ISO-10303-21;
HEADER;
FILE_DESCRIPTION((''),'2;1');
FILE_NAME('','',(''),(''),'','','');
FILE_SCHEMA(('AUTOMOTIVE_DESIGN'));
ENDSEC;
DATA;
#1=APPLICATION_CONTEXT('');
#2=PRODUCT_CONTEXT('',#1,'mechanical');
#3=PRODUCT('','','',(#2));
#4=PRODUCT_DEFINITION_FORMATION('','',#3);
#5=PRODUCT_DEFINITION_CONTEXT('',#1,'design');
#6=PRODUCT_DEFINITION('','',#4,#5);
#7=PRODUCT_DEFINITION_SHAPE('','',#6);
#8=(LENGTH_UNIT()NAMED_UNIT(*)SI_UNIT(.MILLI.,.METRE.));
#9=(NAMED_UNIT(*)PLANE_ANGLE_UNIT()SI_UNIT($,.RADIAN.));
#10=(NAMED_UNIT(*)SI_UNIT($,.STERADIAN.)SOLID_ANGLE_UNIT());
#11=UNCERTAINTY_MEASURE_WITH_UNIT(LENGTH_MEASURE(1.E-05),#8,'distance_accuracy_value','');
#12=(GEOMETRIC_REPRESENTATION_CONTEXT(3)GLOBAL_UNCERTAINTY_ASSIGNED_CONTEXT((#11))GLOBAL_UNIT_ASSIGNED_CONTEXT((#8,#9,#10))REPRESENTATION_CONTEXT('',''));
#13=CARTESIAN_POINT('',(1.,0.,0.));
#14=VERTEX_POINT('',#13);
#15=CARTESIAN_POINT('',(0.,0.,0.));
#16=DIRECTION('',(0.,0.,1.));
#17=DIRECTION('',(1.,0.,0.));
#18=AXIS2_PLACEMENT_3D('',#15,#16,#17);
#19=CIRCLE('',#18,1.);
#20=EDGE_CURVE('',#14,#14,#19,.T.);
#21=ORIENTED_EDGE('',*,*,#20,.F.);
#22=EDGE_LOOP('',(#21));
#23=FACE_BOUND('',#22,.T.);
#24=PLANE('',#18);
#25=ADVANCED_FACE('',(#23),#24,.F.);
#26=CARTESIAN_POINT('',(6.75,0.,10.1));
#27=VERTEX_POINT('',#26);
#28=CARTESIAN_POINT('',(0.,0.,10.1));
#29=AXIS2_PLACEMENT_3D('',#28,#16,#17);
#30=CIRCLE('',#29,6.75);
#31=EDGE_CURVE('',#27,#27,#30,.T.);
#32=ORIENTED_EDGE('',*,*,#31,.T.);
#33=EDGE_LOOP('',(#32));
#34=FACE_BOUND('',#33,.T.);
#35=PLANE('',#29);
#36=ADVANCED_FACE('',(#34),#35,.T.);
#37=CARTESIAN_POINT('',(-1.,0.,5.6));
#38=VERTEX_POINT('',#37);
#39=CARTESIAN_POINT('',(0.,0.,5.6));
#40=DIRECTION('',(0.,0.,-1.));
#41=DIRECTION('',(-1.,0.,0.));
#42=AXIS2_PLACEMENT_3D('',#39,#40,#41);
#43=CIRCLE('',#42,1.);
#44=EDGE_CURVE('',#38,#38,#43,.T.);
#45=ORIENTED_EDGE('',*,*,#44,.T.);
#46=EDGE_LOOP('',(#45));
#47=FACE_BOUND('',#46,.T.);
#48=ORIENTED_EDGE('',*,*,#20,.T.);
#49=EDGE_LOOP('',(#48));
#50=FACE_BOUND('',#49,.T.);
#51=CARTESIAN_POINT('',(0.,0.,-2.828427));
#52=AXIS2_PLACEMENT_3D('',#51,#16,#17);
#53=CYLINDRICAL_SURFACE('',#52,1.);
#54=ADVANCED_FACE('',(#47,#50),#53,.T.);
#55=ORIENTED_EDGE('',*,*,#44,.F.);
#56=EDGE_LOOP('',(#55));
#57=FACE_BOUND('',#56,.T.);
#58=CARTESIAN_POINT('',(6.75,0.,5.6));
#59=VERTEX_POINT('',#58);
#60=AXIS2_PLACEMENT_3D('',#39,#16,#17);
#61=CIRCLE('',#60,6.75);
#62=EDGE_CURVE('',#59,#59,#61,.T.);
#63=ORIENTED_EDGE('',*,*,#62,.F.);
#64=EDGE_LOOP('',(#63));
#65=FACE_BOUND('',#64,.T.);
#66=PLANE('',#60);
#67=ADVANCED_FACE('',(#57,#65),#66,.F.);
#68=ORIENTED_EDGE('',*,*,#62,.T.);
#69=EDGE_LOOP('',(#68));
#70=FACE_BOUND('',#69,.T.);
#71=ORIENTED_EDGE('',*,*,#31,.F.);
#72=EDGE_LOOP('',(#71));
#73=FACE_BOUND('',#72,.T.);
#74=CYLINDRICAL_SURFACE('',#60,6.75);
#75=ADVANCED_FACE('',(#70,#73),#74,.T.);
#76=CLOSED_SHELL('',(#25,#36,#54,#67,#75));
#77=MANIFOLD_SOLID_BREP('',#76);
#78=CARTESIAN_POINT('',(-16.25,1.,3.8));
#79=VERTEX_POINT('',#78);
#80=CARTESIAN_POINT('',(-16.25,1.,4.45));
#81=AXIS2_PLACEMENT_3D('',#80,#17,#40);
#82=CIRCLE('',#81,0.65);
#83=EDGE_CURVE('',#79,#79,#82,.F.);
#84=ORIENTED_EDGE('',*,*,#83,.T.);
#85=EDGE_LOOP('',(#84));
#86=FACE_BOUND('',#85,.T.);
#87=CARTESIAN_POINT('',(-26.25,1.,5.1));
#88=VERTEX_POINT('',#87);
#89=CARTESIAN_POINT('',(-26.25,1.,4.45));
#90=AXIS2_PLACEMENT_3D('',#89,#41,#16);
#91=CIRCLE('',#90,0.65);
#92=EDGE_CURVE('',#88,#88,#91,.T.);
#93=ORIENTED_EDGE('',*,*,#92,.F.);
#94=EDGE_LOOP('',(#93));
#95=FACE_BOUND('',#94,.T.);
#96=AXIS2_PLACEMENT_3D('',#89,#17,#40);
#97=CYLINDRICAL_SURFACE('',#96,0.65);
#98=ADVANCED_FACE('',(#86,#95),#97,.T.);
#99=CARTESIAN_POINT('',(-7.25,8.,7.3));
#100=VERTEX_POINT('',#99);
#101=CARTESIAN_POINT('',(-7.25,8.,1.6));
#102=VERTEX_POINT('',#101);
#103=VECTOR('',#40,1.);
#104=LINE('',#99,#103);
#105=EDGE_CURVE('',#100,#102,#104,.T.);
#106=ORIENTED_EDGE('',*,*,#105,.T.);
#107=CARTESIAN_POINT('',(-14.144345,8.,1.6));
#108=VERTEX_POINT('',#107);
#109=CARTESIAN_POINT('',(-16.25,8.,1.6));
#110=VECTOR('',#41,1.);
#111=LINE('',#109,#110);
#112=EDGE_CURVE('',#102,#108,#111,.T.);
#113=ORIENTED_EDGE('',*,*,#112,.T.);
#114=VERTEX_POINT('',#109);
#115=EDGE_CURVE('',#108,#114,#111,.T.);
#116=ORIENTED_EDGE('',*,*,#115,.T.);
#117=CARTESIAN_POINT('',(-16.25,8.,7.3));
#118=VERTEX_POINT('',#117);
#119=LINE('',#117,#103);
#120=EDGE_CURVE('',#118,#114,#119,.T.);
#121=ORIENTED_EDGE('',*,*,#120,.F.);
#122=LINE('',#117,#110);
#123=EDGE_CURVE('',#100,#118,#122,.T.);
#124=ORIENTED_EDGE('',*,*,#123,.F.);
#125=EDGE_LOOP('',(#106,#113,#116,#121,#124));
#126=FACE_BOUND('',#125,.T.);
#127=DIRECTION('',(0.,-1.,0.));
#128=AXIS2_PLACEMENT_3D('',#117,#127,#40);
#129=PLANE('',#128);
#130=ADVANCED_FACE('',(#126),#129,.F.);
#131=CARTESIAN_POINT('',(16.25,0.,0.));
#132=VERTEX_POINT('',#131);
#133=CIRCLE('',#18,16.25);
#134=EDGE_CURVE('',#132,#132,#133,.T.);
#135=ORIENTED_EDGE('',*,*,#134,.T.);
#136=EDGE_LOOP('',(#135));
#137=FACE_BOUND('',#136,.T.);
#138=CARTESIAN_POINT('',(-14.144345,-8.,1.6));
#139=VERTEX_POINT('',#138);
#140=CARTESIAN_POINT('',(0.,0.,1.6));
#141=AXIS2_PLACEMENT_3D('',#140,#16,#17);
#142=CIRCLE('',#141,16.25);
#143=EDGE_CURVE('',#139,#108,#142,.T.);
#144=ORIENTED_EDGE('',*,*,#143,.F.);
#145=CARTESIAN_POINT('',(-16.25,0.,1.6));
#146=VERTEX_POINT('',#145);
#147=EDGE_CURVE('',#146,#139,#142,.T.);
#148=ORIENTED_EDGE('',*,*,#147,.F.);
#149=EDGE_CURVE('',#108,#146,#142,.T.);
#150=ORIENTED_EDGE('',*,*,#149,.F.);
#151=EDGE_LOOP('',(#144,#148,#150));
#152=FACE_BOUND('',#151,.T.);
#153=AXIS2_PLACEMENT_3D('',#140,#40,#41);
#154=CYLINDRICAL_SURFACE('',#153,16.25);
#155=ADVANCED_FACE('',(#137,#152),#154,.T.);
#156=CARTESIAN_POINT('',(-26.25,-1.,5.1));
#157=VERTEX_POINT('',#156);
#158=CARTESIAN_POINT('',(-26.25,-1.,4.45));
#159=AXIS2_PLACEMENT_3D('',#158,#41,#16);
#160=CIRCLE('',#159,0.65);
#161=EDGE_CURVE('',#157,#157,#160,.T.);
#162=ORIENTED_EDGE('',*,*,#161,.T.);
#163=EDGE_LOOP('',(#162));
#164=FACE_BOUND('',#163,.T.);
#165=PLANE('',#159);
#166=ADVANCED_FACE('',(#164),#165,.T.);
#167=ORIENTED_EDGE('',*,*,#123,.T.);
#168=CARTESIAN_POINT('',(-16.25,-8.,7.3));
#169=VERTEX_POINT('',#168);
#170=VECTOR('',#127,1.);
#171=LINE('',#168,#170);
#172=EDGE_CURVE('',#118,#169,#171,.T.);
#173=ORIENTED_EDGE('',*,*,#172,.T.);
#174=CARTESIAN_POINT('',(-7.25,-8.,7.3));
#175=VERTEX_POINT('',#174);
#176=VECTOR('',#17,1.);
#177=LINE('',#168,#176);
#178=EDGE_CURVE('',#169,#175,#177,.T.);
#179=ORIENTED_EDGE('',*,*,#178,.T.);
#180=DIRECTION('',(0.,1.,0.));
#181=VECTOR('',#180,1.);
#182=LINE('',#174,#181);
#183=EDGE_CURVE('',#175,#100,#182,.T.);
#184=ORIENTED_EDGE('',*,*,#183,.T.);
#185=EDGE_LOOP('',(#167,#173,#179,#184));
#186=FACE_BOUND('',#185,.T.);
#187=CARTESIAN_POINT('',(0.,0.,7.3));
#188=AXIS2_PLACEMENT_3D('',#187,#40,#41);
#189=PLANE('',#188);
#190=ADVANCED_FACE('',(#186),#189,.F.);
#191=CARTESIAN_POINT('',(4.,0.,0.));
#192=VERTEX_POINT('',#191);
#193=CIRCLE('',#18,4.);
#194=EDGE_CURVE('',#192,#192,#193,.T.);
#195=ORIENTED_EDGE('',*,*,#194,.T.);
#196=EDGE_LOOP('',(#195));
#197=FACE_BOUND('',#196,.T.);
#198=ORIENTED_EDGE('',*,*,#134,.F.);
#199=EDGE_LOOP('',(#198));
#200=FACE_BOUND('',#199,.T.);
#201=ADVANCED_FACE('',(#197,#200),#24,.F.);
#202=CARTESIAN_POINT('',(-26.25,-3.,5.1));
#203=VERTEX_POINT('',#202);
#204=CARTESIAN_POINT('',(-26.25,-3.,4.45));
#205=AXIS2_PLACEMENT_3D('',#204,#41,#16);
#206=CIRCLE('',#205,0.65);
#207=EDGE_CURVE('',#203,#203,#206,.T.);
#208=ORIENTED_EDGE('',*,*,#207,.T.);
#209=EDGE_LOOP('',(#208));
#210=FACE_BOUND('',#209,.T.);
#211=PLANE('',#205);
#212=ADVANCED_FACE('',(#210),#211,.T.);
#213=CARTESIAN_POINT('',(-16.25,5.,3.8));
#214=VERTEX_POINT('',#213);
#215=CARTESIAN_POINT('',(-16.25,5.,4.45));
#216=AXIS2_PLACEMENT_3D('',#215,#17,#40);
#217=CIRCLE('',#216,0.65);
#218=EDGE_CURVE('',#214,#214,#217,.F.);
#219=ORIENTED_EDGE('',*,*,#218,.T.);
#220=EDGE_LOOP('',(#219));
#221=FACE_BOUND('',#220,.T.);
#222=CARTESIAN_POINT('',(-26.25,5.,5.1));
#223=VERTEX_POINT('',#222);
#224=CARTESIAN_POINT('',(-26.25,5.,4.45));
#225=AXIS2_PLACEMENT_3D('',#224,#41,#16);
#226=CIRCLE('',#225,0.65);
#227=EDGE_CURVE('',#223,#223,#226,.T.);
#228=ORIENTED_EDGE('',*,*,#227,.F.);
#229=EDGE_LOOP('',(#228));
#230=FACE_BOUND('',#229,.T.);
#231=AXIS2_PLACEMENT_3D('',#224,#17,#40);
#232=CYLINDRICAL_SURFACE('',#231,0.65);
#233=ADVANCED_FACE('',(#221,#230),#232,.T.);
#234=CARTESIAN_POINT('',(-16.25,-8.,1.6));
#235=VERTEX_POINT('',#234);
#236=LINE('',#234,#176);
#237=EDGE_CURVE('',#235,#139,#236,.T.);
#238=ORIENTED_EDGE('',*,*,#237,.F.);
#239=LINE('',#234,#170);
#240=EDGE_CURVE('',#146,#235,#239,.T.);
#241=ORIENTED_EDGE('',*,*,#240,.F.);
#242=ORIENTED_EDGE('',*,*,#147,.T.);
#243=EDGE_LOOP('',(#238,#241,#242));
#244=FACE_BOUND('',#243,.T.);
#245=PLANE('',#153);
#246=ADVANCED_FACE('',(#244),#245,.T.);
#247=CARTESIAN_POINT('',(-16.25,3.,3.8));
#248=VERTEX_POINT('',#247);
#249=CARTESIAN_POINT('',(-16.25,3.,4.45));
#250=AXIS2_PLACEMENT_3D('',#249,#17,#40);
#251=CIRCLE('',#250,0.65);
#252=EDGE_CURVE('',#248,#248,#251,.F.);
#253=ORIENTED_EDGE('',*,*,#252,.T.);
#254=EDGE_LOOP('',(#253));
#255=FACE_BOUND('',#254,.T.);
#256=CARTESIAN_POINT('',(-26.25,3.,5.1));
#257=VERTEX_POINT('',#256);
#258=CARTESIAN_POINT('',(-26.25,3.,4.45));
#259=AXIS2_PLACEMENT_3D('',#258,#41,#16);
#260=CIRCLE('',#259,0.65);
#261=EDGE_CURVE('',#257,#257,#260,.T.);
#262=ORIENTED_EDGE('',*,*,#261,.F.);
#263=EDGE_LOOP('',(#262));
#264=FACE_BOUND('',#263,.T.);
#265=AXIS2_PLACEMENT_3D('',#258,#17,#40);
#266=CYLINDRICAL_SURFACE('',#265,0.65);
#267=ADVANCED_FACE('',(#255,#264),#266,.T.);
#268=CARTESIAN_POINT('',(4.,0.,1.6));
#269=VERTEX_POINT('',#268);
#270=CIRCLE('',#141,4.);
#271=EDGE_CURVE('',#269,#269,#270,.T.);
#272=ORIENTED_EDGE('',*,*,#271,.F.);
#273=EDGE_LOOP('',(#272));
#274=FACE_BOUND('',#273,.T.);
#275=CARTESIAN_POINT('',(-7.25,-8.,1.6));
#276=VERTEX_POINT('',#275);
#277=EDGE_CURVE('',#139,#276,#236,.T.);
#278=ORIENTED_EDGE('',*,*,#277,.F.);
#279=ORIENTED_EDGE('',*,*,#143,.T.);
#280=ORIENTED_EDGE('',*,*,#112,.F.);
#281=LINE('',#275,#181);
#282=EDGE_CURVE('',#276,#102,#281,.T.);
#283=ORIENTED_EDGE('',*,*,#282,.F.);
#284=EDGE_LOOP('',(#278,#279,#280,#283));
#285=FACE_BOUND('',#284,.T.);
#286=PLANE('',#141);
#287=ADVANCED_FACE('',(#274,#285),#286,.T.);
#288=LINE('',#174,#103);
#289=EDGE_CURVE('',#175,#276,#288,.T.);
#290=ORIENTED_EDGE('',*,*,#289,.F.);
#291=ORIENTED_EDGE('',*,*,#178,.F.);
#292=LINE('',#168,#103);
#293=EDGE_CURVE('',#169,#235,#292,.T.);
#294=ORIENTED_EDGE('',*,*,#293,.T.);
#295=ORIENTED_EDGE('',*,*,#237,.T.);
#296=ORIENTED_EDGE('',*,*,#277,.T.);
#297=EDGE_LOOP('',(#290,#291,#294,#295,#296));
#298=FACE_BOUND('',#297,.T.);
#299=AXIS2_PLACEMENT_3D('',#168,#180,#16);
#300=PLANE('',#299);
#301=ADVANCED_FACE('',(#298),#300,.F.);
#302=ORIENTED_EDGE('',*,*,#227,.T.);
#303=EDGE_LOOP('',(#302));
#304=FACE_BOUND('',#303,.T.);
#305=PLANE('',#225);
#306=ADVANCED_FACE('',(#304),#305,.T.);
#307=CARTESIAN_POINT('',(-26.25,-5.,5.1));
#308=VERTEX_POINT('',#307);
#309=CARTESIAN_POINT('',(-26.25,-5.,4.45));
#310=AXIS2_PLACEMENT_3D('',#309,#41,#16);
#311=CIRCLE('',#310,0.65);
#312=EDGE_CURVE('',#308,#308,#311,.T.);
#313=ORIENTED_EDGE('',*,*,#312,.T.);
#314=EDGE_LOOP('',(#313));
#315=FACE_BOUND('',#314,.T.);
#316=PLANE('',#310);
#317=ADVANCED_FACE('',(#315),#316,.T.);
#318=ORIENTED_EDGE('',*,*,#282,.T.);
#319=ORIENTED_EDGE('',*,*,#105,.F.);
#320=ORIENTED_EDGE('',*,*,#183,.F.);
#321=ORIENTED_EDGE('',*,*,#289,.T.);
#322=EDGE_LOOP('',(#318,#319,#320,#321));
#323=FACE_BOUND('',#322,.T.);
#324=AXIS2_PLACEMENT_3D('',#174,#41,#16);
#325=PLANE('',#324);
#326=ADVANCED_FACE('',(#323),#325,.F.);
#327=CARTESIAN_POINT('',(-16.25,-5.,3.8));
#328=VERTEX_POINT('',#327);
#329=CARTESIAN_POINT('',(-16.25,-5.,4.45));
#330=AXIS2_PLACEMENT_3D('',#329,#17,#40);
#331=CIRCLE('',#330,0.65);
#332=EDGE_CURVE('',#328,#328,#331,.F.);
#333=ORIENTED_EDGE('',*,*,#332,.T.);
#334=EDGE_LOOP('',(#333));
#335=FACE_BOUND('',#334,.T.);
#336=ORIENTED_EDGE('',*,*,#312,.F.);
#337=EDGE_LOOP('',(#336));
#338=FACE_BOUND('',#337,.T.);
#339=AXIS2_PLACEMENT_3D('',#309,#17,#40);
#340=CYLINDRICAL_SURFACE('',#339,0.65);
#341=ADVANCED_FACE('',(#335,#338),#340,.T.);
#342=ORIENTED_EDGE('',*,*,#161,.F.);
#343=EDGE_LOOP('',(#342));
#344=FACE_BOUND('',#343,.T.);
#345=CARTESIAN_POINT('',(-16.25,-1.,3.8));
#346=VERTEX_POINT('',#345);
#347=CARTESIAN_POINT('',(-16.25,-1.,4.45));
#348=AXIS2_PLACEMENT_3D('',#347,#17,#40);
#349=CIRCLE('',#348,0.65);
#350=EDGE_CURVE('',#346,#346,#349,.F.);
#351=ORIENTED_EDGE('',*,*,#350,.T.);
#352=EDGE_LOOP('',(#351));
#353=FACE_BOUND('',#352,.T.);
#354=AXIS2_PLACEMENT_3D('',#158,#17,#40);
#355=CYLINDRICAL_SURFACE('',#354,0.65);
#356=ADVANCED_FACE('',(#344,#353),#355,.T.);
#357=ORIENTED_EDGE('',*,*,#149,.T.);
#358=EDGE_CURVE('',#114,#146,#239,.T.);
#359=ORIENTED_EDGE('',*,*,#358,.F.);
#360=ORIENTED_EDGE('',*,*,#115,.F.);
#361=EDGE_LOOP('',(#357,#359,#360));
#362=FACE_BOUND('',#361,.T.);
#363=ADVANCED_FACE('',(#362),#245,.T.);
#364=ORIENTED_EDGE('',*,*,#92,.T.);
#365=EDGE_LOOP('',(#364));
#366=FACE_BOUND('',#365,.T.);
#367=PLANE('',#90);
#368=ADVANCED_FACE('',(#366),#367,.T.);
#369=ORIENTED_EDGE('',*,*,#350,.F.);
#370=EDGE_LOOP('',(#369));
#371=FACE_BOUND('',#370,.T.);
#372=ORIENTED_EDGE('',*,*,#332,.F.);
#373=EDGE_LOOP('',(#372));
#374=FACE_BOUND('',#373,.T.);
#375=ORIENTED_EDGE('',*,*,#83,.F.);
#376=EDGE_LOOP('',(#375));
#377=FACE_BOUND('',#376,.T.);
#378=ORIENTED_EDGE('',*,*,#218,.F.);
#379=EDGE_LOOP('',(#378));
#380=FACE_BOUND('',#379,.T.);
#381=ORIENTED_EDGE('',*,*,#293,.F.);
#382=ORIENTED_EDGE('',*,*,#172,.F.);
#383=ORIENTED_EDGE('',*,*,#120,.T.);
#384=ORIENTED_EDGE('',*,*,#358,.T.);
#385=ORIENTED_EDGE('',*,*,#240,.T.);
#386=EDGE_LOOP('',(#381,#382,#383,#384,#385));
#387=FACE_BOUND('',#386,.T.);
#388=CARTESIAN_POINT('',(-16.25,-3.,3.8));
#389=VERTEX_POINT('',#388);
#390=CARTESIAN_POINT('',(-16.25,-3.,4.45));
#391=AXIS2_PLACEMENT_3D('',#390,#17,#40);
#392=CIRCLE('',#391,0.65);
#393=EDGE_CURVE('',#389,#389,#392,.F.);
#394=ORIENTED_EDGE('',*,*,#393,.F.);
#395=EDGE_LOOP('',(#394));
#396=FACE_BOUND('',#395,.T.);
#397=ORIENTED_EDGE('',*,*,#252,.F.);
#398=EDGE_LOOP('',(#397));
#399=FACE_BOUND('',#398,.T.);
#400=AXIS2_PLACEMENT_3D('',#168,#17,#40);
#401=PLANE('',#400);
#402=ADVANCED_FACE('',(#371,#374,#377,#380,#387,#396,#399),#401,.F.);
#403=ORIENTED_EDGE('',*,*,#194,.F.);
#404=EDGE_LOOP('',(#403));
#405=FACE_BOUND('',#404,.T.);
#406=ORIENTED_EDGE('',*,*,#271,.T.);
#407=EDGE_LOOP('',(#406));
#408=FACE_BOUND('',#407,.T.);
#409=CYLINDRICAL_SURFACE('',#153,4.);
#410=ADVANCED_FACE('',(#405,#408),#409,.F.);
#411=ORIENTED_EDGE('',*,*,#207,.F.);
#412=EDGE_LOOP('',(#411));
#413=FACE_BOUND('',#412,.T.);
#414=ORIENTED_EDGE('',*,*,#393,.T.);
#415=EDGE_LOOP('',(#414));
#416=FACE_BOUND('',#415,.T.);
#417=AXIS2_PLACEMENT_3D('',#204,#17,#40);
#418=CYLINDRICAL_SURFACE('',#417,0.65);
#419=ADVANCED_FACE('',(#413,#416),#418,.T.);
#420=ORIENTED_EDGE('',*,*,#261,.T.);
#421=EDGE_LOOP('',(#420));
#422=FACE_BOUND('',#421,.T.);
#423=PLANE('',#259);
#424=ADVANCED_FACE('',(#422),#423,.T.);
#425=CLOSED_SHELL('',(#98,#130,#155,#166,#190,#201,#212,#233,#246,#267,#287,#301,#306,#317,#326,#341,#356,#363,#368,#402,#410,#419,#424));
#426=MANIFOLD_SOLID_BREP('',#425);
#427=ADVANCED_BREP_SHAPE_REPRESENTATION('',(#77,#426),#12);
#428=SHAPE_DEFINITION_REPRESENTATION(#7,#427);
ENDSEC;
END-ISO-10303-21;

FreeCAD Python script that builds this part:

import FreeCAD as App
import Part
import Sketcher

V = App.Vector
Q = App.Units.Quantity


def add_polygon(sketch, points):
    """Adds a closed chain of lines whose ends are joined by coincident constraints."""
    first, n = sketch.GeometryCount, len(points)
    for a, b in zip(points, points[1:] + points[:1]):
        sketch.addGeometry(Part.LineSegment(App.Vector(*a, 0), App.Vector(*b, 0)), False)
    for i in range(n):
        sketch.addConstraint(Sketcher.Constraint("Coincident", first + i, 2, first + (i + 1) % n, 1))

doc = App.newDocument("Part")
params = doc.addObject("Spreadsheet::Sheet", "Params")
for row, (alias, value) in enumerate([
    ("sketch1_diameter", "8 mm"),
    ("sketch1_diameter2", "32.5 mm"),
    ("pad1_length", "1.6 mm"),
    ("sketch2_width", "9 mm"),
    ("sketch2_height", "16 mm"),
    ("pad2_length", "5.7 mm"),
    ("sketch3_diameter", "1.3 mm"),
    ("pad3_length", "10 mm"),
    ("sketch4_diameter", "13.5 mm"),
    ("pad4_length", "4.5 mm"),
    ("sketch5_diameter", "2 mm"),
    ("pad5_length", "5.6 mm"),
], start=1):
    params.set(f"A{row}", alias)
    params.set(f"B{row}", "=" + value)
    params.setAlias(f"B{row}", alias)

body = doc.addObject("PartDesign::Body", "Body")

sketch1 = body.newObject("Sketcher::SketchObject", "Sketch")
sketch1.AttachmentSupport = (doc.getObject("XY_Plane"), [""])
sketch1.MapMode = "FlatFace"
sketch1.addGeometry([
    Part.Circle(V(0, 0, 0), V(0, 0, 1), 16.25),
    Part.Circle(V(0, 0, 0), V(0, 0, 1), 4),
], False)
sketch1.addConstraint([
    Sketcher.Constraint("Coincident", 0, 3, -1, 1),
    Sketcher.Constraint("Coincident", 1, 3, -1, 1),
    Sketcher.Constraint("Diameter", 1, Q("8 mm")),
    Sketcher.Constraint("Diameter", 0, Q("32.5 mm")),
])
sketch1.setExpression("Constraints[2]", "Params.sketch1_diameter")
sketch1.setExpression("Constraints[3]", "Params.sketch1_diameter2")
pad1 = body.newObject("PartDesign::Pad", "Pad")
pad1.Profile = sketch1
pad1.setExpression("Length", "Params.pad1_length")

sketch2 = body.newObject("Sketcher::SketchObject", "Sketch001")
sketch2.AttachmentSupport = (doc.getObject("XY_Plane"), [""])
sketch2.MapMode = "FlatFace"
sketch2.AttachmentOffset = App.Placement(V(0, 0, 1.6), App.Rotation())
add_polygon(sketch2, [(-16.25, 8), (-16.25, -8), (-7.25, -8), (-7.25, 8)])
sketch2.addConstraint([
    Sketcher.Constraint("Vertical", 0),
    Sketcher.Constraint("Horizontal", 1),
    Sketcher.Constraint("Vertical", 2),
    Sketcher.Constraint("Horizontal", 3),
    Sketcher.Constraint("DistanceX", 1, 1, 1, 2, Q("9 mm")),
    Sketcher.Constraint("DistanceY", 0, 2, 0, 1, Q("16 mm")),
    Sketcher.Constraint("DistanceY", 0, 2, -1, 1, Q("8 mm")),
    Sketcher.Constraint("DistanceX", 0, 2, -1, 1, Q("16.25 mm")),
])
sketch2.setExpression("Constraints[8]", "Params.sketch2_width")
sketch2.setExpression("Constraints[9]", "Params.sketch2_height")
pad2 = body.newObject("PartDesign::Pad", "Pad001")
pad2.Profile = sketch2
pad2.setExpression("Length", "Params.pad2_length")

sketch3 = body.newObject("Sketcher::SketchObject", "Sketch002")
sketch3.AttachmentSupport = (doc.getObject("YZ_Plane"), [""])
sketch3.MapMode = "FlatFace"
sketch3.AttachmentOffset = App.Placement(V(0, 0, -16.25), App.Rotation())
sketch3.addGeometry([
    Part.Circle(V(5, 4.45, 0), V(0, 0, 1), 0.65),
    Part.Circle(V(3, 4.45, 0), V(0, 0, 1), 0.65),
    Part.Circle(V(1, 4.45, 0), V(0, 0, 1), 0.65),
    Part.Circle(V(-1, 4.45, 0), V(0, 0, 1), 0.65),
    Part.Circle(V(-3, 4.45, 0), V(0, 0, 1), 0.65),
    Part.Circle(V(-5, 4.45, 0), V(0, 0, 1), 0.65),
], False)
sketch3.addConstraint([
    Sketcher.Constraint("Equal", 0, 1),
    Sketcher.Constraint("Equal", 1, 2),
    Sketcher.Constraint("Equal", 2, 3),
    Sketcher.Constraint("Equal", 3, 4),
    Sketcher.Constraint("Equal", 4, 5),
    Sketcher.Constraint("Symmetric", 2, 3, 3, 3, -2),
    Sketcher.Constraint("Symmetric", 1, 3, 4, 3, -2),
    Sketcher.Constraint("Symmetric", 0, 3, 5, 3, -2),
    Sketcher.Constraint("Horizontal", 0, 3, 1, 3),
    Sketcher.Constraint("Horizontal", 1, 3, 2, 3),
    Sketcher.Constraint("Diameter", 0, Q("1.3 mm")),
    Sketcher.Constraint("DistanceX", -1, 1, 0, 3, Q("5 mm")),
    Sketcher.Constraint("DistanceX", -1, 1, 1, 3, Q("3 mm")),
    Sketcher.Constraint("DistanceX", -1, 1, 2, 3, Q("1 mm")),
    Sketcher.Constraint("DistanceY", -1, 1, 0, 3, Q("4.45 mm")),
])
sketch3.setExpression("Constraints[10]", "Params.sketch3_diameter")
pad3 = body.newObject("PartDesign::Pad", "Pad002")
pad3.Profile = sketch3
pad3.setExpression("Length", "Params.pad3_length")
pad3.Reversed = True
body2 = doc.addObject("PartDesign::Body", "Body001")

sketch4 = body2.newObject("Sketcher::SketchObject", "Sketch003")
sketch4.AttachmentSupport = (doc.getObject("XY_Plane001"), [""])
sketch4.MapMode = "FlatFace"
sketch4.AttachmentOffset = App.Placement(V(0, 0, 10.1), App.Rotation())
sketch4.addGeometry(Part.Circle(V(0, 0, 0), V(0, 0, 1), 6.75), False)
sketch4.addConstraint([
    Sketcher.Constraint("Coincident", 0, 3, -1, 1),
    Sketcher.Constraint("Diameter", 0, Q("13.5 mm")),
])
sketch4.setExpression("Constraints[1]", "Params.sketch4_diameter")
pad4 = body2.newObject("PartDesign::Pad", "Pad003")
pad4.Profile = sketch4
pad4.setExpression("Length", "Params.pad4_length")
pad4.Reversed = True

sketch5 = body2.newObject("Sketcher::SketchObject", "Sketch004")
sketch5.AttachmentSupport = (doc.getObject("XY_Plane001"), [""])
sketch5.MapMode = "FlatFace"
sketch5.AttachmentOffset = App.Placement(V(0, 0, 5.6), App.Rotation())
sketch5.addGeometry(Part.Circle(V(0, 0, 0), V(0, 0, 1), 1), False)
sketch5.addConstraint([
    Sketcher.Constraint("Coincident", 0, 3, -1, 1),
    Sketcher.Constraint("Diameter", 0, Q("2 mm")),
])
sketch5.setExpression("Constraints[1]", "Params.sketch5_diameter")
pad5 = body2.newObject("PartDesign::Pad", "Pad004")
pad5.Profile = sketch5
pad5.setExpression("Length", "Params.pad5_length")
pad5.Reversed = True

doc.recompute()
